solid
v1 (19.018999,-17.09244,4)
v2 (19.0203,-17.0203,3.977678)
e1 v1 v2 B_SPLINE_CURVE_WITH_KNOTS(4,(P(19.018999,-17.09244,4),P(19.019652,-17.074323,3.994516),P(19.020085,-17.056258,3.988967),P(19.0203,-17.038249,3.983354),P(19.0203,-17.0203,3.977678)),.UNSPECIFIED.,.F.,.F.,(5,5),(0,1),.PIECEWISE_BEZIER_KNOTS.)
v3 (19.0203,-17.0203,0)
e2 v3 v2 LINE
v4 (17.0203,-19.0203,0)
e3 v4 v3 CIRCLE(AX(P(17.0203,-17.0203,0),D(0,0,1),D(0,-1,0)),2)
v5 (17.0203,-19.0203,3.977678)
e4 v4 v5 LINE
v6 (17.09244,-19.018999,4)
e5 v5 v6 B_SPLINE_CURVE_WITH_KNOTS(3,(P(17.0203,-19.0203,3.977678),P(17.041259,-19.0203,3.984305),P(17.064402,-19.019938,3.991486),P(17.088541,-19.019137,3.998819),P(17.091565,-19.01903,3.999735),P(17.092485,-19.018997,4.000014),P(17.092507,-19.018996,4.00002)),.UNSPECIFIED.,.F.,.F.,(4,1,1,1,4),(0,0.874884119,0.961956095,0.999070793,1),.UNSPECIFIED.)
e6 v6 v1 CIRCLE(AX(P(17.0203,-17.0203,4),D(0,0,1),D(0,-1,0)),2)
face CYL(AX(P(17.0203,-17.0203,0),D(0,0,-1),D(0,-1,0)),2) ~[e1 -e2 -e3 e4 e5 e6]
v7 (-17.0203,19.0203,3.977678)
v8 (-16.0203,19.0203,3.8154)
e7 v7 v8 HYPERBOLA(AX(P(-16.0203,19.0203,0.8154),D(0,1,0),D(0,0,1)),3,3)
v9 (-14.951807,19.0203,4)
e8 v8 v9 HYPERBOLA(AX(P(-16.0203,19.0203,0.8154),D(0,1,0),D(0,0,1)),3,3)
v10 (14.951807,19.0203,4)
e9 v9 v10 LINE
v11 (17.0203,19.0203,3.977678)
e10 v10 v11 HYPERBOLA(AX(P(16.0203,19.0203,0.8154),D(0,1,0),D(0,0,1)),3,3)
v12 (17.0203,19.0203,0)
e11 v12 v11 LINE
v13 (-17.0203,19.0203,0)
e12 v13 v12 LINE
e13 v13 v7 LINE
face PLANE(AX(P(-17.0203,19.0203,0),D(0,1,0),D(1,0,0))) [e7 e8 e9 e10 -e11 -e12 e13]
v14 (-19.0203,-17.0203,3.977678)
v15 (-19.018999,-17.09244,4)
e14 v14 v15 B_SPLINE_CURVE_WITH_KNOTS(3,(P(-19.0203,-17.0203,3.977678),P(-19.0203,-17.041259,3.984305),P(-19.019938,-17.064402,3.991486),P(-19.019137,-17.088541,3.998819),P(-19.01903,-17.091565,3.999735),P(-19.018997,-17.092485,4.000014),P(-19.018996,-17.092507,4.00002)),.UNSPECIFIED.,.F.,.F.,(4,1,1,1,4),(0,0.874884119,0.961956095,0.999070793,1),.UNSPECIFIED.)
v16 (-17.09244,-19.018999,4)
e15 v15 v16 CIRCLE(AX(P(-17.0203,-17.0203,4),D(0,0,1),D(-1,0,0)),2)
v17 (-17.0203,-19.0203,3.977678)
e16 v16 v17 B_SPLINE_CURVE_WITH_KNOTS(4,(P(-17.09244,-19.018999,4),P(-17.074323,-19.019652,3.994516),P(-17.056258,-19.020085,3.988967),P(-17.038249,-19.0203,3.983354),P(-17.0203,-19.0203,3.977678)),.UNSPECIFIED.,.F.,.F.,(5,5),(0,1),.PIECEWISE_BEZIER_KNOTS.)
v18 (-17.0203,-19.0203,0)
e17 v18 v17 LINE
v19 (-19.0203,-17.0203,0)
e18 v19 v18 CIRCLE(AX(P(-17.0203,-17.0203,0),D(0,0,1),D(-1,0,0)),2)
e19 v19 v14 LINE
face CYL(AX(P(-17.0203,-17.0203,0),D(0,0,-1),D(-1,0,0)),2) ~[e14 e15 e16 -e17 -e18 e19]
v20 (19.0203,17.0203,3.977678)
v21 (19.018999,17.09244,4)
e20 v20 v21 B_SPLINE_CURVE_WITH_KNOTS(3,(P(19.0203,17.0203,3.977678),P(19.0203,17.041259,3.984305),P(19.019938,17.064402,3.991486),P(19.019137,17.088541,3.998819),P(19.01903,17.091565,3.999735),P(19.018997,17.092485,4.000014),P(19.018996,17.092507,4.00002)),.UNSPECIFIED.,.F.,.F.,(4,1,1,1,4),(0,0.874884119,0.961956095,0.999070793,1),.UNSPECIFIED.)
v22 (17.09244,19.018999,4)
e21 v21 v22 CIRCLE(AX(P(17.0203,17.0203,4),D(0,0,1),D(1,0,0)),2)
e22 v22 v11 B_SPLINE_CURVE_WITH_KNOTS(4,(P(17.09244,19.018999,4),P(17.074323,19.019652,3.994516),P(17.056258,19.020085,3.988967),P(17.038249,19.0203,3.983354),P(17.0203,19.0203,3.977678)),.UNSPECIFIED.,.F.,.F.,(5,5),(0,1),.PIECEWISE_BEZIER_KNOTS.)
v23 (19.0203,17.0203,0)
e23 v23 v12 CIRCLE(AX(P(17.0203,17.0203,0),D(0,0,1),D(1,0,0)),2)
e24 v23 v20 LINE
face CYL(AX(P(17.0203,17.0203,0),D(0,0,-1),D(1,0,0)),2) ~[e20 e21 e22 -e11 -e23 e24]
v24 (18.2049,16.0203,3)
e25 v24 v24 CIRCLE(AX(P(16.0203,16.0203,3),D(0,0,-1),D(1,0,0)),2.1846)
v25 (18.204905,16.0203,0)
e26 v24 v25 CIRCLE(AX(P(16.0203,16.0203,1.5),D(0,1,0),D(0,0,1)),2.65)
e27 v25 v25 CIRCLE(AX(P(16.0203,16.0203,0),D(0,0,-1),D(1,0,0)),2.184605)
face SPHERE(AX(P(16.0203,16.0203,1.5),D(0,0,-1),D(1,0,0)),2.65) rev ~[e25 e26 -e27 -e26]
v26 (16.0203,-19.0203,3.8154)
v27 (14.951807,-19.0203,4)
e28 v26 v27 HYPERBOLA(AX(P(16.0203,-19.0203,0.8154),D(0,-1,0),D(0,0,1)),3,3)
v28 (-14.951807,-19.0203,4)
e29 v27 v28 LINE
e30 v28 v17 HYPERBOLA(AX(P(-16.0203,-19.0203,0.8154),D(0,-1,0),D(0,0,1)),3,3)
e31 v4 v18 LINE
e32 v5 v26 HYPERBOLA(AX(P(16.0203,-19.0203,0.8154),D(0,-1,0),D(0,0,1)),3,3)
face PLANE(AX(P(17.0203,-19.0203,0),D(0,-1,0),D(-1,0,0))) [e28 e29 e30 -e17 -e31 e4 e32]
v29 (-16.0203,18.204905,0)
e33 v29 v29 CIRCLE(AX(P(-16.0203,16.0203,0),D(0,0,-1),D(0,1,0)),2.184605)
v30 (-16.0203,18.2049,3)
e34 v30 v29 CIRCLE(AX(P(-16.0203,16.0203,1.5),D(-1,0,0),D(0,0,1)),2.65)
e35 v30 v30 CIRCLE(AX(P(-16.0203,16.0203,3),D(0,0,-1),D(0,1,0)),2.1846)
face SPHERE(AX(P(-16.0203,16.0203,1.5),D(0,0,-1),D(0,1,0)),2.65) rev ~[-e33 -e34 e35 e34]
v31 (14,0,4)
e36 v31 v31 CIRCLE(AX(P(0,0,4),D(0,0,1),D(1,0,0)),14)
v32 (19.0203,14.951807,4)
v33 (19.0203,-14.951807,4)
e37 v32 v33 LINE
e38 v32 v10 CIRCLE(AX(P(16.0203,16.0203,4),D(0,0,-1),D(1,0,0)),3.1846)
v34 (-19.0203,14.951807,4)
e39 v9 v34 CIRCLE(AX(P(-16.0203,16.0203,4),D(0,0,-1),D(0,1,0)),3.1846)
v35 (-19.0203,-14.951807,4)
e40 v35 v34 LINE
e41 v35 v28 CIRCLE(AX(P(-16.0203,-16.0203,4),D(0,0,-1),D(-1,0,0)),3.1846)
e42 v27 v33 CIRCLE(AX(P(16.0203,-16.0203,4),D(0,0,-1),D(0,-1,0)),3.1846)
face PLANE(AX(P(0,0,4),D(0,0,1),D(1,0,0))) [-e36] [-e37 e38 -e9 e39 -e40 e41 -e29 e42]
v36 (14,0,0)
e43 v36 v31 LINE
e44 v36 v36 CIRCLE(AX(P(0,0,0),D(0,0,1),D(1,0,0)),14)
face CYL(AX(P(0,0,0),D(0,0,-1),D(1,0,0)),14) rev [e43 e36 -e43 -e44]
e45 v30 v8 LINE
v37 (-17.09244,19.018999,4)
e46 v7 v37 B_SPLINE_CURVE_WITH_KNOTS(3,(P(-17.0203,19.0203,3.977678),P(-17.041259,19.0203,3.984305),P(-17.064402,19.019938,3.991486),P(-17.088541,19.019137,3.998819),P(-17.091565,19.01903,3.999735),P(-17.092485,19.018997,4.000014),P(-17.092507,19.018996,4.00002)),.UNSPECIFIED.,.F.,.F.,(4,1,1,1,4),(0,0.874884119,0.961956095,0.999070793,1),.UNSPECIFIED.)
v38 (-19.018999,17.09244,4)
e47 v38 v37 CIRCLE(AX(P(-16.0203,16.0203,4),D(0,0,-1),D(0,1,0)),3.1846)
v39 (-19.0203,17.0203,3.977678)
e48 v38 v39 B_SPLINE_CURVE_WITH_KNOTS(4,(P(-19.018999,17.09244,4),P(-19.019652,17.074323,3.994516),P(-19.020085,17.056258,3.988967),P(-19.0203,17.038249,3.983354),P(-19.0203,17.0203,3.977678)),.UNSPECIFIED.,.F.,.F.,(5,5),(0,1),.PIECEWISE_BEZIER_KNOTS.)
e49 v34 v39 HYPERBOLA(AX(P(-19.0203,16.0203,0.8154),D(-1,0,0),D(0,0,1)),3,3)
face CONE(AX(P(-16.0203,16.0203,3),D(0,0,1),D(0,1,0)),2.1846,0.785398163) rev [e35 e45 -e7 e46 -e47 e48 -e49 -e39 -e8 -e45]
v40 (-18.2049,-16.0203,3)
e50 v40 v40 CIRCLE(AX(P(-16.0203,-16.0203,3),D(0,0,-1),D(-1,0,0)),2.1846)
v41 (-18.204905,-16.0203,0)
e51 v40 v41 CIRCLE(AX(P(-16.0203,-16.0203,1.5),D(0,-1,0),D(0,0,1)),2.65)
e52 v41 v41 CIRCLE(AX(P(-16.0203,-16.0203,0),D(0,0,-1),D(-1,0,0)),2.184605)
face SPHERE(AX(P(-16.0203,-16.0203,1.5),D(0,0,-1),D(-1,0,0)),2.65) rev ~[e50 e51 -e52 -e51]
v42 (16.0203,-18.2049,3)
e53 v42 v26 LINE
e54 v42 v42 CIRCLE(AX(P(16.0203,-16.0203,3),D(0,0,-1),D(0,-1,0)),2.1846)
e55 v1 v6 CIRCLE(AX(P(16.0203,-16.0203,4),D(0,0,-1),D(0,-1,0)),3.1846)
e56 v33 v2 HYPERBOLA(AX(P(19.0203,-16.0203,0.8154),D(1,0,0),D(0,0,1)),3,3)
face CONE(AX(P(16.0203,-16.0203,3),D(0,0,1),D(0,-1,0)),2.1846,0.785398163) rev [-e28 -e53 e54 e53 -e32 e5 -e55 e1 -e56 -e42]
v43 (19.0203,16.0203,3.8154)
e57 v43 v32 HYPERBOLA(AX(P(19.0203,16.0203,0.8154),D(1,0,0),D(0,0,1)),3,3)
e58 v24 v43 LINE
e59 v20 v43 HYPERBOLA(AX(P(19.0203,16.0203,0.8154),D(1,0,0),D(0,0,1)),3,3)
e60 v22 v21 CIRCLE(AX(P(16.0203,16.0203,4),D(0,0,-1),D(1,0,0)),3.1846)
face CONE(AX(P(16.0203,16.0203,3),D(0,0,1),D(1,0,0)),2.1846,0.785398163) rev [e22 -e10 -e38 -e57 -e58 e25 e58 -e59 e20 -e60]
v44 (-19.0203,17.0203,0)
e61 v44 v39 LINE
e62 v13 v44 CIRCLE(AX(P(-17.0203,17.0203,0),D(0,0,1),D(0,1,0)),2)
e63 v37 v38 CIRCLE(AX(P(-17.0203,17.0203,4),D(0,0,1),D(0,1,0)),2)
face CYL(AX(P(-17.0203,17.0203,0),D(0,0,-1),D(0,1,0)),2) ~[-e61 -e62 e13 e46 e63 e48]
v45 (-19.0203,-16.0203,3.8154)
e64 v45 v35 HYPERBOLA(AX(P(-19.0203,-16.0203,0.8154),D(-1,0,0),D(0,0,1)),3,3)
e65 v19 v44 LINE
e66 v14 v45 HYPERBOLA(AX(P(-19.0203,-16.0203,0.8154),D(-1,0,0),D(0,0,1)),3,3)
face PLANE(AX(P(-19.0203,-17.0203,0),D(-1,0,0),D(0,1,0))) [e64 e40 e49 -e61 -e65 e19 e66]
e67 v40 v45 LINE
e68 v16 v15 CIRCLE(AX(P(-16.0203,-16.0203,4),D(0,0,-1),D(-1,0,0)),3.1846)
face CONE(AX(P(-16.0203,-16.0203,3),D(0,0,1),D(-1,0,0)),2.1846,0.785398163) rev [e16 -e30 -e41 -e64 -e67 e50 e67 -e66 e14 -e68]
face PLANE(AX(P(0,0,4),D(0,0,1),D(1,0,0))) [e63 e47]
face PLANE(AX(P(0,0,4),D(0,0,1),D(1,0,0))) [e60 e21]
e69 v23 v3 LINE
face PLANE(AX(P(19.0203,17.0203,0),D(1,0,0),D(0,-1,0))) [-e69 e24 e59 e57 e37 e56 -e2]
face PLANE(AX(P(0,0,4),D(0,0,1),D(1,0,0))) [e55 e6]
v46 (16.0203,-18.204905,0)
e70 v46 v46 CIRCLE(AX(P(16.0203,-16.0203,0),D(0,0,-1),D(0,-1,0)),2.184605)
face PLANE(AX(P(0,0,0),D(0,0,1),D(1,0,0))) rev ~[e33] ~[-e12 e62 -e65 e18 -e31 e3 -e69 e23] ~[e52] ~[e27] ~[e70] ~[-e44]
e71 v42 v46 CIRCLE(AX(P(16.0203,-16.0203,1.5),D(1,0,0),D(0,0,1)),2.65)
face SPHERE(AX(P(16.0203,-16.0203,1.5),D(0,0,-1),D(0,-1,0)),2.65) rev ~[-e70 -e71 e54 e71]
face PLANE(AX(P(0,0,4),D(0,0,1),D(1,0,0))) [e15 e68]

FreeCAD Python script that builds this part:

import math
import FreeCAD as App
import Part
import Sketcher
from FreeCAD import Vector
Q = App.Units.Quantity

doc = App.newDocument("Part")
body = doc.addObject("PartDesign::Body", "Body")

sketch1 = doc.addObject("Sketcher::SketchObject", "Sketch")
body.addObject(sketch1)
sketch1.AttachmentSupport = (doc.XY_Plane, [""])
sketch1.MapMode = "FlatFace"
sketch1.addGeometry([
    Part.LineSegment(Vector(-17.0203, -19.0203, 0), Vector(17.0203, -19.0203, 0)),
    Part.ArcOfCircle(Part.Circle(Vector(17.0203, -17.0203, 0), Vector(0, 0, 1), 2), math.radians(-90), math.radians(0)),
    Part.LineSegment(Vector(19.0203, -17.0203, 0), Vector(19.0203, 17.0203, 0)),
    Part.ArcOfCircle(Part.Circle(Vector(17.0203, 17.0203, 0), Vector(0, 0, 1), 2), math.radians(0), math.radians(90)),
    Part.LineSegment(Vector(17.0203, 19.0203, 0), Vector(-17.0203, 19.0203, 0)),
    Part.ArcOfCircle(Part.Circle(Vector(-17.0203, 17.0203, 0), Vector(0, 0, 1), 2), math.radians(90), math.radians(180)),
    Part.LineSegment(Vector(-19.0203, 17.0203, 0), Vector(-19.0203, -17.0203, 0)),
    Part.ArcOfCircle(Part.Circle(Vector(-17.0203, -17.0203, 0), Vector(0, 0, 1), 2), math.radians(180), math.radians(270)),
    Part.Circle(Vector(0, 0, 0), Vector(0, 0, 1), 14),
], False)
sketch1.addConstraint([
    Sketcher.Constraint("Tangent", 0, 2, 1, 1),
    Sketcher.Constraint("Tangent", 1, 2, 2, 1),
    Sketcher.Constraint("Tangent", 2, 2, 3, 1),
    Sketcher.Constraint("Tangent", 3, 2, 4, 1),
    Sketcher.Constraint("Tangent", 4, 2, 5, 1),
    Sketcher.Constraint("Tangent", 5, 2, 6, 1),
    Sketcher.Constraint("Tangent", 6, 2, 7, 1),
    Sketcher.Constraint("Tangent", 7, 2, 0, 1),
    Sketcher.Constraint("Horizontal", 0),
    Sketcher.Constraint("Vertical", 2),
    Sketcher.Constraint("Horizontal", 4),
    Sketcher.Constraint("Vertical", 6),
    Sketcher.Constraint("Coincident", 8, 3, -1, 1),
    Sketcher.Constraint("Equal", 1, 3),
    Sketcher.Constraint("Equal", 3, 5),
    Sketcher.Constraint("Equal", 5, 7),
    Sketcher.Constraint("Symmetric", 1, 3, 5, 3, -1, 1),
    Sketcher.Constraint("Equal", 4, 2),
    Sketcher.Constraint("Diameter", 8, Q("28 mm")),
    Sketcher.Constraint("Radius", 1, Q("2 mm")),
    Sketcher.Constraint("DistanceX", 0, 1, 0, 2, Q("34.0406 mm")),
])
pad1 = doc.addObject("PartDesign::Pad", "Pad")
body.addObject(pad1)
pad1.Profile = sketch1
pad1.Length = 4

sketch2 = doc.addObject("Sketcher::SketchObject", "Sketch001")
body.addObject(sketch2)
sketch2.AttachmentSupport = (doc.XZ_Plane, [""])
sketch2.MapMode = "FlatFace"
sketch2.AttachmentOffset = App.Placement(Vector(0, 0, -16.0203), App.Rotation())
sketch2.addGeometry([
    Part.LineSegment(Vector(16.0203, 4, 0), Vector(19.2049, 4, 0)),
    Part.LineSegment(Vector(19.2049, 4, 0), Vector(18.2049, 3, 0)),
    Part.ArcOfCircle(Part.Circle(Vector(16.0203, 1.5, 0), Vector(0, 0, 1), 2.65), math.radians(-90), math.radians(34.474449)),
    Part.LineSegment(Vector(16.0203, -1.15, 0), Vector(16.0203, 4, 0)),
], False)
sketch2.addGeometry(Part.LineSegment(Vector(16.0203, 4, 0), Vector(16.0203, -1.15, 0)), True)
sketch2.addConstraint([
    Sketcher.Constraint("Coincident", 0, 2, 1, 1),
    Sketcher.Constraint("Coincident", 1, 2, 2, 2),
    Sketcher.Constraint("Coincident", 2, 1, 3, 1),
    Sketcher.Constraint("Coincident", 3, 2, 0, 1),
    Sketcher.Constraint("Horizontal", 0),
    Sketcher.Constraint("Vertical", 3),
    Sketcher.Constraint("Vertical", 4),
    Sketcher.Constraint("Coincident", 4, 1, 3, 2),
    Sketcher.Constraint("Equal", 3, 4),
    Sketcher.Constraint("Angle", 1, Q("-135 deg")),
    Sketcher.Constraint("Radius", 2, Q("2.65 mm")),
    Sketcher.Constraint("DistanceY", -1, 1, 1, 2, Q("3 mm")),
    Sketcher.Constraint("DistanceY", -1, 1, 2, 3, Q("1.5 mm")),
    Sketcher.Constraint("DistanceY", 2, 3, 0, 2, Q("2.5 mm")),
    Sketcher.Constraint("DistanceX", 0, 1, 0, 2, Q("3.1846 mm")),
    Sketcher.Constraint("DistanceX", -1, 1, 0, 2, Q("19.205 mm")),
])
groove = doc.addObject("PartDesign::Groove", "Groove")
body.addObject(groove)
groove.Profile = sketch2
groove.ReferenceAxis = (sketch2, ["Axis0"])
groove.Angle = 360
doc.recompute()

polarpattern = doc.addObject("PartDesign::PolarPattern", "PolarPattern")
body.addObject(polarpattern)
polarpattern.Originals = [groove]
polarpattern.Axis = (doc.Z_Axis, [""])
polarpattern.Angle = 360
polarpattern.Occurrences = 4
body.Tip = polarpattern

doc.recompute()
